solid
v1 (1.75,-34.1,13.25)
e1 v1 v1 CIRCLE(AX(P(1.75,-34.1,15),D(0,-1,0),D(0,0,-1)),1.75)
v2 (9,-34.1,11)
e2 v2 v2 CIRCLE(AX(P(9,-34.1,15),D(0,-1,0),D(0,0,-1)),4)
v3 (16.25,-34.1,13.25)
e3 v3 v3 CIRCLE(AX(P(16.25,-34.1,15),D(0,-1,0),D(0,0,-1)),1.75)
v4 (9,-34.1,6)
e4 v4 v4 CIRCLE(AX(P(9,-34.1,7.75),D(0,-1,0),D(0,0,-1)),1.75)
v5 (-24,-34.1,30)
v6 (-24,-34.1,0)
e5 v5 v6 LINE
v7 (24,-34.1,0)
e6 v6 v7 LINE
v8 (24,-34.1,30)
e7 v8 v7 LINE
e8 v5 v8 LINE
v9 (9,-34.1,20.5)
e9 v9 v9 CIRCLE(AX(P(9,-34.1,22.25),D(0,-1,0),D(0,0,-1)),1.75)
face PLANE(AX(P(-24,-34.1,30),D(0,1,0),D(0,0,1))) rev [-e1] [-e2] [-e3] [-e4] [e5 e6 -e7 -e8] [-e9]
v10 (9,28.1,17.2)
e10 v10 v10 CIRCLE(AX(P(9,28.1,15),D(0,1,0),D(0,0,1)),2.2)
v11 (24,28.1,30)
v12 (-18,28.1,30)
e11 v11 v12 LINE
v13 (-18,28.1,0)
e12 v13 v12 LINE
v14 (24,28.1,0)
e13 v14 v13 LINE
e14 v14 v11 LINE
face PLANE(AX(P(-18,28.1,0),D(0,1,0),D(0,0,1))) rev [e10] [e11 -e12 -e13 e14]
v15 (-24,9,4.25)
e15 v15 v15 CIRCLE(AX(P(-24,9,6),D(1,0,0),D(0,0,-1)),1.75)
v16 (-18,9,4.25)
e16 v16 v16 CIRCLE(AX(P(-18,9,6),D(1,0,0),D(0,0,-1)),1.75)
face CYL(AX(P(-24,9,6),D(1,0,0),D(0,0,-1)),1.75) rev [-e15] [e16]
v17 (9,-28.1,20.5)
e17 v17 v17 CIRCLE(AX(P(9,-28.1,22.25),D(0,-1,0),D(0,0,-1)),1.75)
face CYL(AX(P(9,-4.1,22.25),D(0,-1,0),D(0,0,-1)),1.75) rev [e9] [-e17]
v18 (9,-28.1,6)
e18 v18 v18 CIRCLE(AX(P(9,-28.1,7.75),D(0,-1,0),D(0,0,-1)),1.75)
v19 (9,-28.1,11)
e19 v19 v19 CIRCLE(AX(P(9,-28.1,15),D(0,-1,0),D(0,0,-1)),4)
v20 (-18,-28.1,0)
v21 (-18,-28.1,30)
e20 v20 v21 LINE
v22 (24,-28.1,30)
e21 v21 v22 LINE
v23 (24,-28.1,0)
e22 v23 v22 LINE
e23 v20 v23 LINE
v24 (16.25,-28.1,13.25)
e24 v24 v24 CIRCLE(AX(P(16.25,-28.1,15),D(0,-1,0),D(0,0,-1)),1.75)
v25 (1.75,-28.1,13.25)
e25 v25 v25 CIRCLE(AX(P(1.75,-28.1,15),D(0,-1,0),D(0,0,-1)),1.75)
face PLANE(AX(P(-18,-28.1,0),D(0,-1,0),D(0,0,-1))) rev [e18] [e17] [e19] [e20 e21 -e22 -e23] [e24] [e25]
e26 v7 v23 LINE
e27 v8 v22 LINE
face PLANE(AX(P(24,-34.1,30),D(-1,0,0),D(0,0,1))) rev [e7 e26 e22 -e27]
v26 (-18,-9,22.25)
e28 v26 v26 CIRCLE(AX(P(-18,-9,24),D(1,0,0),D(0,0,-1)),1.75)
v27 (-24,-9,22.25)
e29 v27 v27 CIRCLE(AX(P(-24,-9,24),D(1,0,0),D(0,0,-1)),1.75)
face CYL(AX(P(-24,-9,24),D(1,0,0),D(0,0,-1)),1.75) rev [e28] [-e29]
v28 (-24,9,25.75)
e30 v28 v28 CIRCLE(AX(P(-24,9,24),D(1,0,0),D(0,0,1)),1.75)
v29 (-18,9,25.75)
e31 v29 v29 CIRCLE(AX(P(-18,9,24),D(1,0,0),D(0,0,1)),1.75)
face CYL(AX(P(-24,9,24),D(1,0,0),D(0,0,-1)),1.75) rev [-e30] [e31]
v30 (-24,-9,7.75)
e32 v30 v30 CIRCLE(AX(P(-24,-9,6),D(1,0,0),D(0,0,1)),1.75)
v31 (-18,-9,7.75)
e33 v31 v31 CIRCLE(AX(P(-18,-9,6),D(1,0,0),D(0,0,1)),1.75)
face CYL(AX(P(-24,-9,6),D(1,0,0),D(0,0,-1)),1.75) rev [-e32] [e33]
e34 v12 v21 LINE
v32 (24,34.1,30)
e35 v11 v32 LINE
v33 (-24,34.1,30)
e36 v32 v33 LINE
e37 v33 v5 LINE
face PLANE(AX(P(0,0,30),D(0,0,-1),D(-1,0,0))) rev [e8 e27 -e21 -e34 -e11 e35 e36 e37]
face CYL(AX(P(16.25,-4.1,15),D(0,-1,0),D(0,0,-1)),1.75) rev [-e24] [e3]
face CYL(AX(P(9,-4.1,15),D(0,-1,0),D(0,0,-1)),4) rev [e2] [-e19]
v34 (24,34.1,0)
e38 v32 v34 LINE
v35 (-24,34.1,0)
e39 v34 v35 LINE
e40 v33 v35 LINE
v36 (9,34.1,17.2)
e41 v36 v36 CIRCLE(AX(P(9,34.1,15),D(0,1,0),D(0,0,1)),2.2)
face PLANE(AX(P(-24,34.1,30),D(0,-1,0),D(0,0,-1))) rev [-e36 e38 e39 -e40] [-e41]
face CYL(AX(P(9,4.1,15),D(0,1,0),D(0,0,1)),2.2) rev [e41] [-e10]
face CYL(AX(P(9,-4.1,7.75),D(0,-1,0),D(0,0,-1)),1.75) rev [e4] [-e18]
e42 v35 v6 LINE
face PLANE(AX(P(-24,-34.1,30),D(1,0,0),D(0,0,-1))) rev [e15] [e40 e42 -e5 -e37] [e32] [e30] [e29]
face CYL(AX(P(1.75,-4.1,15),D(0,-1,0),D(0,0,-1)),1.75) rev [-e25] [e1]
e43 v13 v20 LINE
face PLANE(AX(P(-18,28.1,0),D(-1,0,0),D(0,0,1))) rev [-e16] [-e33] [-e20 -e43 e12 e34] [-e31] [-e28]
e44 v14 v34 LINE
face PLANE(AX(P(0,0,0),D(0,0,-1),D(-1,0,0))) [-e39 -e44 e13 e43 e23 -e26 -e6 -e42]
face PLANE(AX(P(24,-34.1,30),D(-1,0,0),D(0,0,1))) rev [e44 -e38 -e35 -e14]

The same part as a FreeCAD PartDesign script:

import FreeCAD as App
import Part
import Sketcher

doc = App.newDocument("Part")
body = doc.addObject("PartDesign::Body", "Body")

# Sketch on XY plane
sketch1 = body.newObject("Sketcher::SketchObject", "Sketch")
sketch1.AttachmentSupport = (doc.getObject("XY_Plane"), [""])
sketch1.MapMode = "FlatFace"
sketch1.addGeometry(Part.LineSegment(App.Vector(-24, 34.1, 0), App.Vector(-24, -34.1, 0)), False)
sketch1.addGeometry(Part.LineSegment(App.Vector(-24, -34.1, 0), App.Vector(24, -34.1, 0)), False)
sketch1.addGeometry(Part.LineSegment(App.Vector(24, -34.1, 0), App.Vector(24, 34.1, 0)), False)
sketch1.addGeometry(Part.LineSegment(App.Vector(24, 34.1, 0), App.Vector(-24, 34.1, 0)), False)
sketch1.addConstraint(Sketcher.Constraint("Coincident", 0, 2, 1, 1))
sketch1.addConstraint(Sketcher.Constraint("Coincident", 1, 2, 2, 1))
sketch1.addConstraint(Sketcher.Constraint("Coincident", 2, 2, 3, 1))
sketch1.addConstraint(Sketcher.Constraint("Coincident", 3, 2, 0, 1))
sketch1.addConstraint(Sketcher.Constraint("Vertical", 0))
sketch1.addConstraint(Sketcher.Constraint("Horizontal", 1))
sketch1.addConstraint(Sketcher.Constraint("Vertical", 2))
sketch1.addConstraint(Sketcher.Constraint("Horizontal", 3))
sketch1.addConstraint(Sketcher.Constraint("Symmetric", 0, 2, 2, 2, -1, 1))
sketch1.addConstraint(Sketcher.Constraint("DistanceX", 1, 1, 1, 2, 48.0))
sketch1.addConstraint(Sketcher.Constraint("DistanceY", 0, 2, 0, 1, 68.2))
pad1 = body.newObject("PartDesign::Pad", "Pad")
pad1.Profile = sketch1
pad1.Length = 30

# Sketch on XY plane
sketch2 = body.newObject("Sketcher::SketchObject", "Sketch001")
sketch2.AttachmentSupport = (doc.getObject("XY_Plane"), [""])
sketch2.MapMode = "FlatFace"
sketch2.AttachmentOffset = App.Placement(App.Vector(0, 0, 30), App.Rotation())
sketch2.addGeometry(Part.LineSegment(App.Vector(-18, 28.1, 0), App.Vector(-18, -28.1, 0)), False)
sketch2.addGeometry(Part.LineSegment(App.Vector(-18, -28.1, 0), App.Vector(24, -28.1, 0)), False)
sketch2.addGeometry(Part.LineSegment(App.Vector(24, -28.1, 0), App.Vector(24, 28.1, 0)), False)
sketch2.addGeometry(Part.LineSegment(App.Vector(24, 28.1, 0), App.Vector(-18, 28.1, 0)), False)
sketch2.addConstraint(Sketcher.Constraint("Coincident", 0, 2, 1, 1))
sketch2.addConstraint(Sketcher.Constraint("Coincident", 1, 2, 2, 1))
sketch2.addConstraint(Sketcher.Constraint("Coincident", 2, 2, 3, 1))
sketch2.addConstraint(Sketcher.Constraint("Coincident", 3, 2, 0, 1))
sketch2.addConstraint(Sketcher.Constraint("Vertical", 0))
sketch2.addConstraint(Sketcher.Constraint("Horizontal", 1))
sketch2.addConstraint(Sketcher.Constraint("Vertical", 2))
sketch2.addConstraint(Sketcher.Constraint("Horizontal", 3))
sketch2.addConstraint(Sketcher.Constraint("DistanceX", 1, 1, 1, 2, 42.0))
sketch2.addConstraint(Sketcher.Constraint("DistanceY", 0, 2, 0, 1, 56.2))
sketch2.addConstraint(Sketcher.Constraint("DistanceX", 0, 2, -1, 1, 18.0))
sketch2.addConstraint(Sketcher.Constraint("DistanceY", 0, 2, -1, 1, 28.1))
pocket1 = body.newObject("PartDesign::Pocket", "Pocket")
pocket1.Profile = sketch2
pocket1.Type = "ThroughAll"

# Sketch on XZ plane
sketch3 = body.newObject("Sketcher::SketchObject", "Sketch002")
sketch3.AttachmentSupport = (doc.getObject("XZ_Plane"), [""])
sketch3.MapMode = "FlatFace"
sketch3.AttachmentOffset = App.Placement(App.Vector(0, 0, 34.1), App.Rotation())
sketch3.addGeometry(Part.Circle(App.Vector(9, 15, 0), App.Vector(0, 0, 1), 4), False)
sketch3.addGeometry(Part.Circle(App.Vector(9, 22.25, 0), App.Vector(0, 0, 1), 1.75), False)
sketch3.addGeometry(Part.Circle(App.Vector(16.25, 15, 0), App.Vector(0, 0, 1), 1.75), False)
sketch3.addGeometry(Part.Circle(App.Vector(9, 7.75, 0), App.Vector(0, 0, 1), 1.75), False)
sketch3.addGeometry(Part.Circle(App.Vector(1.75, 15, 0), App.Vector(0, 0, 1), 1.75), False)
sketch3.addConstraint(Sketcher.Constraint("Equal", 1, 2))
sketch3.addConstraint(Sketcher.Constraint("Equal", 2, 3))
sketch3.addConstraint(Sketcher.Constraint("Equal", 3, 4))
sketch3.addConstraint(Sketcher.Constraint("Horizontal", 0, 3, 2, 3))
sketch3.addConstraint(Sketcher.Constraint("Horizontal", 2, 3, 4, 3))
sketch3.addConstraint(Sketcher.Constraint("Vertical", 0, 3, 1, 3))
sketch3.addConstraint(Sketcher.Constraint("Vertical", 1, 3, 3, 3))
sketch3.addConstraint(Sketcher.Constraint("Diameter", 0, 8.0))
sketch3.addConstraint(Sketcher.Constraint("Diameter", 1, 3.5))
sketch3.addConstraint(Sketcher.Constraint("DistanceX", -1, 1, 0, 3, 9.0))
sketch3.addConstraint(Sketcher.Constraint("DistanceY", -1, 1, 0, 3, 15.0))
sketch3.addConstraint(Sketcher.Constraint("DistanceY", 3, 3, 1, 3, 14.5))
sketch3.addConstraint(Sketcher.Constraint("DistanceX", 4, 3, 2, 3, 14.5))
sketch3.addConstraint(Sketcher.Constraint("DistanceY", -1, 1, 1, 3, 22.25))
sketch3.addConstraint(Sketcher.Constraint("DistanceX", -1, 1, 2, 3, 16.25))
pocket2 = body.newObject("PartDesign::Pocket", "Pocket001")
pocket2.Profile = sketch3
pocket2.Length = 30

# Sketch on XZ plane
sketch4 = body.newObject("Sketcher::SketchObject", "Sketch003")
sketch4.AttachmentSupport = (doc.getObject("XZ_Plane"), [""])
sketch4.MapMode = "FlatFace"
sketch4.AttachmentOffset = App.Placement(App.Vector(0, 0, -34.1), App.Rotation())
sketch4.addGeometry(Part.Circle(App.Vector(9, 15, 0), App.Vector(0, 0, 1), 2.2), False)
sketch4.addConstraint(Sketcher.Constraint("Diameter", 0, 4.4))
sketch4.addConstraint(Sketcher.Constraint("DistanceX", -1, 1, 0, 3, 9.0))
sketch4.addConstraint(Sketcher.Constraint("DistanceY", -1, 1, 0, 3, 15.0))
pocket3 = body.newObject("PartDesign::Pocket", "Pocket002")
pocket3.Profile = sketch4
pocket3.Length = 30
pocket3.Reversed = True

# Sketch on YZ plane
sketch5 = body.newObject("Sketcher::SketchObject", "Sketch004")
sketch5.AttachmentSupport = (doc.getObject("YZ_Plane"), [""])
sketch5.MapMode = "FlatFace"
sketch5.AttachmentOffset = App.Placement(App.Vector(0, 0, -18), App.Rotation())
sketch5.addGeometry(Part.Circle(App.Vector(-9, 24, 0), App.Vector(0, 0, 1), 1.75), False)
sketch5.addGeometry(Part.Circle(App.Vector(-9, 6, 0), App.Vector(0, 0, 1), 1.75), False)
sketch5.addGeometry(Part.Circle(App.Vector(9, 6, 0), App.Vector(0, 0, 1), 1.75), False)
sketch5.addGeometry(Part.Circle(App.Vector(9, 24, 0), App.Vector(0, 0, 1), 1.75), False)
sketch5.addConstraint(Sketcher.Constraint("Equal", 0, 1))
sketch5.addConstraint(Sketcher.Constraint("Equal", 1, 2))
sketch5.addConstraint(Sketcher.Constraint("Equal", 2, 3))
sketch5.addConstraint(Sketcher.Constraint("Symmetric", 1, 3, 2, 3, -2))
sketch5.addConstraint(Sketcher.Constraint("Symmetric", 0, 3, 3, 3, -2))
sketch5.addConstraint(Sketcher.Constraint("Vertical", 0, 3, 1, 3))
sketch5.addConstraint(Sketcher.Constraint("Diameter", 0, 3.5))
sketch5.addConstraint(Sketcher.Constraint("DistanceX", 0, 3, -1, 1, 9.0))
sketch5.addConstraint(Sketcher.Constraint("DistanceY", -1, 1, 0, 3, 24.0))
sketch5.addConstraint(Sketcher.Constraint("DistanceY", -1, 1, 1, 3, 6.0))
pocket4 = body.newObject("PartDesign::Pocket", "Pocket003")
pocket4.Profile = sketch5
pocket4.Type = "ThroughAll"

doc.recompute()
